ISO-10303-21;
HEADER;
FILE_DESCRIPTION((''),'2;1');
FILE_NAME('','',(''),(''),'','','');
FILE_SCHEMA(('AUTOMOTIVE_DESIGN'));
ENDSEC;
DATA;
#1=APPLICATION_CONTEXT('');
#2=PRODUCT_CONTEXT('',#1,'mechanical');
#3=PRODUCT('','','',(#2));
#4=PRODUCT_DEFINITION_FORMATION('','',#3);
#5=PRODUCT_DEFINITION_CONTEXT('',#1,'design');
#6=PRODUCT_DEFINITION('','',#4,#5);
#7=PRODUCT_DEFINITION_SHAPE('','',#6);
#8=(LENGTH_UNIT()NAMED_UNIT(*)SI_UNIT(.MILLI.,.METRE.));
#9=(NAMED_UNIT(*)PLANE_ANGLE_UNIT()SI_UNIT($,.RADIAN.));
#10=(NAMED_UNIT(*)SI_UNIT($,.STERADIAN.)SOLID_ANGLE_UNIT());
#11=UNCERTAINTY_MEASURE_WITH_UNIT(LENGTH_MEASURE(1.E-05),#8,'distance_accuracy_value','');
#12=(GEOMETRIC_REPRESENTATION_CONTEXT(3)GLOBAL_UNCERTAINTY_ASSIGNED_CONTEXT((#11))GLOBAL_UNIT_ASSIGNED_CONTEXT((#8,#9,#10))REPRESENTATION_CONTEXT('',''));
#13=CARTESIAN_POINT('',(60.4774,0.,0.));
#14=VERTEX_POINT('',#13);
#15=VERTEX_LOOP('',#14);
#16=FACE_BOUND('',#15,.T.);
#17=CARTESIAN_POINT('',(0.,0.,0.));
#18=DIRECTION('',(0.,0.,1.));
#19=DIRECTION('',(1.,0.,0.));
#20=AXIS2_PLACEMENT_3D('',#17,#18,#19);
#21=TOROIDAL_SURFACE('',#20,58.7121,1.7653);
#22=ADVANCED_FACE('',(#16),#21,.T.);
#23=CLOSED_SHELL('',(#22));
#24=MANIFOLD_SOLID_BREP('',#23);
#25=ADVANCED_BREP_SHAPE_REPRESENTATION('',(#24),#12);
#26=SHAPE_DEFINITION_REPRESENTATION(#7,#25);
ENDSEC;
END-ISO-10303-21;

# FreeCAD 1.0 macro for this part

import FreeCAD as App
import Part
import Sketcher
from FreeCAD import Vector
Q = App.Units.Quantity

doc = App.newDocument("Part")
body = doc.addObject("PartDesign::Body", "Body")

# Sketch on YZ plane
sketch1 = doc.addObject("Sketcher::SketchObject", "Sketch")
body.addObject(sketch1)
sketch1.AttachmentSupport = (doc.YZ_Plane, [""])
sketch1.MapMode = "FlatFace"
sketch1.addGeometry(Part.Circle(Vector(-58.7, 0, 0), Vector(0, 0, 1), 1.8), False)
sketch1.addConstraint(Sketcher.Constraint("PointOnObject", 0, 3, -1))
sketch1.addConstraint(Sketcher.Constraint("Diameter", 0, Q("0.139 in")))
sketch1.addConstraint(Sketcher.Constraint("DistanceX", 0, 3, -1, 1, Q("2.3115 in")))
revolution = doc.addObject("PartDesign::Revolution", "Revolution")
body.addObject(revolution)
revolution.Profile = sketch1
revolution.ReferenceAxis = (sketch1, ["V_Axis"])
revolution.Angle = 360

doc.recompute()
